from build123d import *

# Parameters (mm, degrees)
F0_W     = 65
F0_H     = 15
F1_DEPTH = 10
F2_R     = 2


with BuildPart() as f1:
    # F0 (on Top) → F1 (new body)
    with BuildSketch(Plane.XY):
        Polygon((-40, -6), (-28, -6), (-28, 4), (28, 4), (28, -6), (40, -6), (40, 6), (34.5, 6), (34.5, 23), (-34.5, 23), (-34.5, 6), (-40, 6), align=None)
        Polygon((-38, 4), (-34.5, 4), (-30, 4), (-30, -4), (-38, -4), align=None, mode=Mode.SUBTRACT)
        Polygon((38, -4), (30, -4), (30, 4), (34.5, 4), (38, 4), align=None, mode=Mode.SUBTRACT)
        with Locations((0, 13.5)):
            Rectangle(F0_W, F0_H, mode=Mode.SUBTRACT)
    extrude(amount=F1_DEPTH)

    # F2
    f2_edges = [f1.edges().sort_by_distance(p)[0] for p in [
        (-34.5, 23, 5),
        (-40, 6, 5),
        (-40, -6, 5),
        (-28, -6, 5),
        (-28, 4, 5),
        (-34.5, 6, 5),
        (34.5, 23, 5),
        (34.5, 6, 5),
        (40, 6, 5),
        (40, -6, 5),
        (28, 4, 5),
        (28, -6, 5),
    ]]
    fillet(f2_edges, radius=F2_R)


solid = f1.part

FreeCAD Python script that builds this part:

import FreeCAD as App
import Part
import Sketcher
Q = App.Units.Quantity


def edges_at(feature, points):
    """Names of the edges that pass closest to the given points."""
    edges = feature.Shape.Edges
    near = lambda p: min(range(len(edges)), key=lambda i: edges[i].distToShape(Part.Vertex(*p))[0])
    return sorted({f"Edge{near(p) + 1}" for p in points})


def add_polygon(sketch, points):
    """Adds a closed chain of lines whose ends are joined by coincident constraints."""
    first, n = sketch.GeometryCount, len(points)
    for a, b in zip(points, points[1:] + points[:1]):
        sketch.addGeometry(Part.LineSegment(App.Vector(*a, 0), App.Vector(*b, 0)), False)
    for i in range(n):
        sketch.addConstraint(Sketcher.Constraint("Coincident", first + i, 2, first + (i + 1) % n, 1))

doc = App.newDocument("Part")
body = doc.addObject("PartDesign::Body", "Body")

sketch1 = body.newObject("Sketcher::SketchObject", "Sketch")
sketch1.AttachmentSupport = (doc.getObject("XY_Plane"), [""])
sketch1.MapMode = "FlatFace"
add_polygon(sketch1, [(-40, -6), (-28, -6), (-28, 4), (28, 4), (28, -6), (40, -6), (40, 6), (34, 6), (34, 23), (-34, 23), (-34, 6), (-40, 6)])
add_polygon(sketch1, [(-38, -4), (-38, 4), (-30, 4), (-30, -4)])
add_polygon(sketch1, [(38, 4), (38, -4), (30, -4), (30, 4)])
add_polygon(sketch1, [(32, 6), (-32, 6), (-32, 21), (32, 21)])
sketch1.addConstraint(Sketcher.Constraint("Horizontal", 0))
sketch1.addConstraint(Sketcher.Constraint("Vertical", 1))
sketch1.addConstraint(Sketcher.Constraint("Horizontal", 2))
sketch1.addConstraint(Sketcher.Constraint("Vertical", 3))
sketch1.addConstraint(Sketcher.Constraint("Horizontal", 4))
sketch1.addConstraint(Sketcher.Constraint("Vertical", 5))
sketch1.addConstraint(Sketcher.Constraint("Horizontal", 6))
sketch1.addConstraint(Sketcher.Constraint("Vertical", 7))
sketch1.addConstraint(Sketcher.Constraint("Horizontal", 8))
sketch1.addConstraint(Sketcher.Constraint("Vertical", 9))
sketch1.addConstraint(Sketcher.Constraint("Horizontal", 10))
sketch1.addConstraint(Sketcher.Constraint("Vertical", 11))
sketch1.addConstraint(Sketcher.Constraint("Vertical", 12))
sketch1.addConstraint(Sketcher.Constraint("Horizontal", 13))
sketch1.addConstraint(Sketcher.Constraint("Vertical", 14))
sketch1.addConstraint(Sketcher.Constraint("Horizontal", 15))
sketch1.addConstraint(Sketcher.Constraint("Vertical", 16))
sketch1.addConstraint(Sketcher.Constraint("Horizontal", 17))
sketch1.addConstraint(Sketcher.Constraint("Vertical", 18))
sketch1.addConstraint(Sketcher.Constraint("Horizontal", 19))
sketch1.addConstraint(Sketcher.Constraint("Horizontal", 20))
sketch1.addConstraint(Sketcher.Constraint("Vertical", 21))
sketch1.addConstraint(Sketcher.Constraint("Horizontal", 22))
sketch1.addConstraint(Sketcher.Constraint("Vertical", 23))
sketch1.addConstraint(Sketcher.Constraint("Symmetric", 4, 2, 10, 2, -1, 1))
sketch1.addConstraint(Sketcher.Constraint("Symmetric", 12, 2, 16, 2, -1, 1))
sketch1.addConstraint(Sketcher.Constraint("Symmetric", 14, 2, 18, 2, -1, 1))
sketch1.addConstraint(Sketcher.Constraint("Symmetric", 0, 2, 3, 2, -2))
sketch1.addConstraint(Sketcher.Constraint("Symmetric", 6, 2, 9, 2, -2))
sketch1.addConstraint(Sketcher.Constraint("Horizontal", 2, 2, 12, 2))
sketch1.addConstraint(Sketcher.Constraint("Horizontal", 15, 2, 16, 2))
sketch1.addConstraint(Sketcher.Constraint("Horizontal", 10, 2, 20, 2))
sketch1.addConstraint(Sketcher.Constraint("Equal", 4, 5))
sketch1.addConstraint(Sketcher.Constraint("Equal", 19, 12))
sketch1.addConstraint(Sketcher.Constraint("DistanceX", 0, 1, 0, 2, Q("12 mm")))
sketch1.addConstraint(Sketcher.Constraint("DistanceX", 2, 1, 2, 2, Q("56 mm")))
sketch1.addConstraint(Sketcher.Constraint("DistanceX", 8, 2, 8, 1, Q("69 mm")))
sketch1.addConstraint(Sketcher.Constraint("DistanceX", 13, 1, 13, 2, Q("8 mm")))
sketch1.addConstraint(Sketcher.Constraint("DistanceX", 20, 2, 20, 1, Q("65 mm")))
sketch1.addConstraint(Sketcher.Constraint("DistanceY", 7, 1, 7, 2, Q("17 mm")))
sketch1.addConstraint(Sketcher.Constraint("DistanceY", 21, 1, 21, 2, Q("15 mm")))
sketch1.addConstraint(Sketcher.Constraint("DistanceX", 12, 2, -1, 1, Q("38 mm")))
sketch1.addConstraint(Sketcher.Constraint("DistanceX", 9, 2, 20, 2, Q("2 mm")))
pad1 = body.newObject("PartDesign::Pad", "Pad")
pad1.Profile = sketch1
pad1.Length = 10
doc.recompute()

fillet = body.newObject("PartDesign::Fillet", "Fillet")
fillet.Base = (pad1, edges_at(pad1, [
    (-34.5, 23, 5),
    (-40, 6, 5),
    (-40, -6, 5),
    (-28, -6, 5),
    (-28, 4, 5),
    (-34.5, 6, 5),
    (34.5, 23, 5),
    (34.5, 6, 5),
    (40, 6, 5),
    (40, -6, 5),
    (28, 4, 5),
    (28, -6, 5),
]))
fillet.Radius = 2

doc.recompute()
